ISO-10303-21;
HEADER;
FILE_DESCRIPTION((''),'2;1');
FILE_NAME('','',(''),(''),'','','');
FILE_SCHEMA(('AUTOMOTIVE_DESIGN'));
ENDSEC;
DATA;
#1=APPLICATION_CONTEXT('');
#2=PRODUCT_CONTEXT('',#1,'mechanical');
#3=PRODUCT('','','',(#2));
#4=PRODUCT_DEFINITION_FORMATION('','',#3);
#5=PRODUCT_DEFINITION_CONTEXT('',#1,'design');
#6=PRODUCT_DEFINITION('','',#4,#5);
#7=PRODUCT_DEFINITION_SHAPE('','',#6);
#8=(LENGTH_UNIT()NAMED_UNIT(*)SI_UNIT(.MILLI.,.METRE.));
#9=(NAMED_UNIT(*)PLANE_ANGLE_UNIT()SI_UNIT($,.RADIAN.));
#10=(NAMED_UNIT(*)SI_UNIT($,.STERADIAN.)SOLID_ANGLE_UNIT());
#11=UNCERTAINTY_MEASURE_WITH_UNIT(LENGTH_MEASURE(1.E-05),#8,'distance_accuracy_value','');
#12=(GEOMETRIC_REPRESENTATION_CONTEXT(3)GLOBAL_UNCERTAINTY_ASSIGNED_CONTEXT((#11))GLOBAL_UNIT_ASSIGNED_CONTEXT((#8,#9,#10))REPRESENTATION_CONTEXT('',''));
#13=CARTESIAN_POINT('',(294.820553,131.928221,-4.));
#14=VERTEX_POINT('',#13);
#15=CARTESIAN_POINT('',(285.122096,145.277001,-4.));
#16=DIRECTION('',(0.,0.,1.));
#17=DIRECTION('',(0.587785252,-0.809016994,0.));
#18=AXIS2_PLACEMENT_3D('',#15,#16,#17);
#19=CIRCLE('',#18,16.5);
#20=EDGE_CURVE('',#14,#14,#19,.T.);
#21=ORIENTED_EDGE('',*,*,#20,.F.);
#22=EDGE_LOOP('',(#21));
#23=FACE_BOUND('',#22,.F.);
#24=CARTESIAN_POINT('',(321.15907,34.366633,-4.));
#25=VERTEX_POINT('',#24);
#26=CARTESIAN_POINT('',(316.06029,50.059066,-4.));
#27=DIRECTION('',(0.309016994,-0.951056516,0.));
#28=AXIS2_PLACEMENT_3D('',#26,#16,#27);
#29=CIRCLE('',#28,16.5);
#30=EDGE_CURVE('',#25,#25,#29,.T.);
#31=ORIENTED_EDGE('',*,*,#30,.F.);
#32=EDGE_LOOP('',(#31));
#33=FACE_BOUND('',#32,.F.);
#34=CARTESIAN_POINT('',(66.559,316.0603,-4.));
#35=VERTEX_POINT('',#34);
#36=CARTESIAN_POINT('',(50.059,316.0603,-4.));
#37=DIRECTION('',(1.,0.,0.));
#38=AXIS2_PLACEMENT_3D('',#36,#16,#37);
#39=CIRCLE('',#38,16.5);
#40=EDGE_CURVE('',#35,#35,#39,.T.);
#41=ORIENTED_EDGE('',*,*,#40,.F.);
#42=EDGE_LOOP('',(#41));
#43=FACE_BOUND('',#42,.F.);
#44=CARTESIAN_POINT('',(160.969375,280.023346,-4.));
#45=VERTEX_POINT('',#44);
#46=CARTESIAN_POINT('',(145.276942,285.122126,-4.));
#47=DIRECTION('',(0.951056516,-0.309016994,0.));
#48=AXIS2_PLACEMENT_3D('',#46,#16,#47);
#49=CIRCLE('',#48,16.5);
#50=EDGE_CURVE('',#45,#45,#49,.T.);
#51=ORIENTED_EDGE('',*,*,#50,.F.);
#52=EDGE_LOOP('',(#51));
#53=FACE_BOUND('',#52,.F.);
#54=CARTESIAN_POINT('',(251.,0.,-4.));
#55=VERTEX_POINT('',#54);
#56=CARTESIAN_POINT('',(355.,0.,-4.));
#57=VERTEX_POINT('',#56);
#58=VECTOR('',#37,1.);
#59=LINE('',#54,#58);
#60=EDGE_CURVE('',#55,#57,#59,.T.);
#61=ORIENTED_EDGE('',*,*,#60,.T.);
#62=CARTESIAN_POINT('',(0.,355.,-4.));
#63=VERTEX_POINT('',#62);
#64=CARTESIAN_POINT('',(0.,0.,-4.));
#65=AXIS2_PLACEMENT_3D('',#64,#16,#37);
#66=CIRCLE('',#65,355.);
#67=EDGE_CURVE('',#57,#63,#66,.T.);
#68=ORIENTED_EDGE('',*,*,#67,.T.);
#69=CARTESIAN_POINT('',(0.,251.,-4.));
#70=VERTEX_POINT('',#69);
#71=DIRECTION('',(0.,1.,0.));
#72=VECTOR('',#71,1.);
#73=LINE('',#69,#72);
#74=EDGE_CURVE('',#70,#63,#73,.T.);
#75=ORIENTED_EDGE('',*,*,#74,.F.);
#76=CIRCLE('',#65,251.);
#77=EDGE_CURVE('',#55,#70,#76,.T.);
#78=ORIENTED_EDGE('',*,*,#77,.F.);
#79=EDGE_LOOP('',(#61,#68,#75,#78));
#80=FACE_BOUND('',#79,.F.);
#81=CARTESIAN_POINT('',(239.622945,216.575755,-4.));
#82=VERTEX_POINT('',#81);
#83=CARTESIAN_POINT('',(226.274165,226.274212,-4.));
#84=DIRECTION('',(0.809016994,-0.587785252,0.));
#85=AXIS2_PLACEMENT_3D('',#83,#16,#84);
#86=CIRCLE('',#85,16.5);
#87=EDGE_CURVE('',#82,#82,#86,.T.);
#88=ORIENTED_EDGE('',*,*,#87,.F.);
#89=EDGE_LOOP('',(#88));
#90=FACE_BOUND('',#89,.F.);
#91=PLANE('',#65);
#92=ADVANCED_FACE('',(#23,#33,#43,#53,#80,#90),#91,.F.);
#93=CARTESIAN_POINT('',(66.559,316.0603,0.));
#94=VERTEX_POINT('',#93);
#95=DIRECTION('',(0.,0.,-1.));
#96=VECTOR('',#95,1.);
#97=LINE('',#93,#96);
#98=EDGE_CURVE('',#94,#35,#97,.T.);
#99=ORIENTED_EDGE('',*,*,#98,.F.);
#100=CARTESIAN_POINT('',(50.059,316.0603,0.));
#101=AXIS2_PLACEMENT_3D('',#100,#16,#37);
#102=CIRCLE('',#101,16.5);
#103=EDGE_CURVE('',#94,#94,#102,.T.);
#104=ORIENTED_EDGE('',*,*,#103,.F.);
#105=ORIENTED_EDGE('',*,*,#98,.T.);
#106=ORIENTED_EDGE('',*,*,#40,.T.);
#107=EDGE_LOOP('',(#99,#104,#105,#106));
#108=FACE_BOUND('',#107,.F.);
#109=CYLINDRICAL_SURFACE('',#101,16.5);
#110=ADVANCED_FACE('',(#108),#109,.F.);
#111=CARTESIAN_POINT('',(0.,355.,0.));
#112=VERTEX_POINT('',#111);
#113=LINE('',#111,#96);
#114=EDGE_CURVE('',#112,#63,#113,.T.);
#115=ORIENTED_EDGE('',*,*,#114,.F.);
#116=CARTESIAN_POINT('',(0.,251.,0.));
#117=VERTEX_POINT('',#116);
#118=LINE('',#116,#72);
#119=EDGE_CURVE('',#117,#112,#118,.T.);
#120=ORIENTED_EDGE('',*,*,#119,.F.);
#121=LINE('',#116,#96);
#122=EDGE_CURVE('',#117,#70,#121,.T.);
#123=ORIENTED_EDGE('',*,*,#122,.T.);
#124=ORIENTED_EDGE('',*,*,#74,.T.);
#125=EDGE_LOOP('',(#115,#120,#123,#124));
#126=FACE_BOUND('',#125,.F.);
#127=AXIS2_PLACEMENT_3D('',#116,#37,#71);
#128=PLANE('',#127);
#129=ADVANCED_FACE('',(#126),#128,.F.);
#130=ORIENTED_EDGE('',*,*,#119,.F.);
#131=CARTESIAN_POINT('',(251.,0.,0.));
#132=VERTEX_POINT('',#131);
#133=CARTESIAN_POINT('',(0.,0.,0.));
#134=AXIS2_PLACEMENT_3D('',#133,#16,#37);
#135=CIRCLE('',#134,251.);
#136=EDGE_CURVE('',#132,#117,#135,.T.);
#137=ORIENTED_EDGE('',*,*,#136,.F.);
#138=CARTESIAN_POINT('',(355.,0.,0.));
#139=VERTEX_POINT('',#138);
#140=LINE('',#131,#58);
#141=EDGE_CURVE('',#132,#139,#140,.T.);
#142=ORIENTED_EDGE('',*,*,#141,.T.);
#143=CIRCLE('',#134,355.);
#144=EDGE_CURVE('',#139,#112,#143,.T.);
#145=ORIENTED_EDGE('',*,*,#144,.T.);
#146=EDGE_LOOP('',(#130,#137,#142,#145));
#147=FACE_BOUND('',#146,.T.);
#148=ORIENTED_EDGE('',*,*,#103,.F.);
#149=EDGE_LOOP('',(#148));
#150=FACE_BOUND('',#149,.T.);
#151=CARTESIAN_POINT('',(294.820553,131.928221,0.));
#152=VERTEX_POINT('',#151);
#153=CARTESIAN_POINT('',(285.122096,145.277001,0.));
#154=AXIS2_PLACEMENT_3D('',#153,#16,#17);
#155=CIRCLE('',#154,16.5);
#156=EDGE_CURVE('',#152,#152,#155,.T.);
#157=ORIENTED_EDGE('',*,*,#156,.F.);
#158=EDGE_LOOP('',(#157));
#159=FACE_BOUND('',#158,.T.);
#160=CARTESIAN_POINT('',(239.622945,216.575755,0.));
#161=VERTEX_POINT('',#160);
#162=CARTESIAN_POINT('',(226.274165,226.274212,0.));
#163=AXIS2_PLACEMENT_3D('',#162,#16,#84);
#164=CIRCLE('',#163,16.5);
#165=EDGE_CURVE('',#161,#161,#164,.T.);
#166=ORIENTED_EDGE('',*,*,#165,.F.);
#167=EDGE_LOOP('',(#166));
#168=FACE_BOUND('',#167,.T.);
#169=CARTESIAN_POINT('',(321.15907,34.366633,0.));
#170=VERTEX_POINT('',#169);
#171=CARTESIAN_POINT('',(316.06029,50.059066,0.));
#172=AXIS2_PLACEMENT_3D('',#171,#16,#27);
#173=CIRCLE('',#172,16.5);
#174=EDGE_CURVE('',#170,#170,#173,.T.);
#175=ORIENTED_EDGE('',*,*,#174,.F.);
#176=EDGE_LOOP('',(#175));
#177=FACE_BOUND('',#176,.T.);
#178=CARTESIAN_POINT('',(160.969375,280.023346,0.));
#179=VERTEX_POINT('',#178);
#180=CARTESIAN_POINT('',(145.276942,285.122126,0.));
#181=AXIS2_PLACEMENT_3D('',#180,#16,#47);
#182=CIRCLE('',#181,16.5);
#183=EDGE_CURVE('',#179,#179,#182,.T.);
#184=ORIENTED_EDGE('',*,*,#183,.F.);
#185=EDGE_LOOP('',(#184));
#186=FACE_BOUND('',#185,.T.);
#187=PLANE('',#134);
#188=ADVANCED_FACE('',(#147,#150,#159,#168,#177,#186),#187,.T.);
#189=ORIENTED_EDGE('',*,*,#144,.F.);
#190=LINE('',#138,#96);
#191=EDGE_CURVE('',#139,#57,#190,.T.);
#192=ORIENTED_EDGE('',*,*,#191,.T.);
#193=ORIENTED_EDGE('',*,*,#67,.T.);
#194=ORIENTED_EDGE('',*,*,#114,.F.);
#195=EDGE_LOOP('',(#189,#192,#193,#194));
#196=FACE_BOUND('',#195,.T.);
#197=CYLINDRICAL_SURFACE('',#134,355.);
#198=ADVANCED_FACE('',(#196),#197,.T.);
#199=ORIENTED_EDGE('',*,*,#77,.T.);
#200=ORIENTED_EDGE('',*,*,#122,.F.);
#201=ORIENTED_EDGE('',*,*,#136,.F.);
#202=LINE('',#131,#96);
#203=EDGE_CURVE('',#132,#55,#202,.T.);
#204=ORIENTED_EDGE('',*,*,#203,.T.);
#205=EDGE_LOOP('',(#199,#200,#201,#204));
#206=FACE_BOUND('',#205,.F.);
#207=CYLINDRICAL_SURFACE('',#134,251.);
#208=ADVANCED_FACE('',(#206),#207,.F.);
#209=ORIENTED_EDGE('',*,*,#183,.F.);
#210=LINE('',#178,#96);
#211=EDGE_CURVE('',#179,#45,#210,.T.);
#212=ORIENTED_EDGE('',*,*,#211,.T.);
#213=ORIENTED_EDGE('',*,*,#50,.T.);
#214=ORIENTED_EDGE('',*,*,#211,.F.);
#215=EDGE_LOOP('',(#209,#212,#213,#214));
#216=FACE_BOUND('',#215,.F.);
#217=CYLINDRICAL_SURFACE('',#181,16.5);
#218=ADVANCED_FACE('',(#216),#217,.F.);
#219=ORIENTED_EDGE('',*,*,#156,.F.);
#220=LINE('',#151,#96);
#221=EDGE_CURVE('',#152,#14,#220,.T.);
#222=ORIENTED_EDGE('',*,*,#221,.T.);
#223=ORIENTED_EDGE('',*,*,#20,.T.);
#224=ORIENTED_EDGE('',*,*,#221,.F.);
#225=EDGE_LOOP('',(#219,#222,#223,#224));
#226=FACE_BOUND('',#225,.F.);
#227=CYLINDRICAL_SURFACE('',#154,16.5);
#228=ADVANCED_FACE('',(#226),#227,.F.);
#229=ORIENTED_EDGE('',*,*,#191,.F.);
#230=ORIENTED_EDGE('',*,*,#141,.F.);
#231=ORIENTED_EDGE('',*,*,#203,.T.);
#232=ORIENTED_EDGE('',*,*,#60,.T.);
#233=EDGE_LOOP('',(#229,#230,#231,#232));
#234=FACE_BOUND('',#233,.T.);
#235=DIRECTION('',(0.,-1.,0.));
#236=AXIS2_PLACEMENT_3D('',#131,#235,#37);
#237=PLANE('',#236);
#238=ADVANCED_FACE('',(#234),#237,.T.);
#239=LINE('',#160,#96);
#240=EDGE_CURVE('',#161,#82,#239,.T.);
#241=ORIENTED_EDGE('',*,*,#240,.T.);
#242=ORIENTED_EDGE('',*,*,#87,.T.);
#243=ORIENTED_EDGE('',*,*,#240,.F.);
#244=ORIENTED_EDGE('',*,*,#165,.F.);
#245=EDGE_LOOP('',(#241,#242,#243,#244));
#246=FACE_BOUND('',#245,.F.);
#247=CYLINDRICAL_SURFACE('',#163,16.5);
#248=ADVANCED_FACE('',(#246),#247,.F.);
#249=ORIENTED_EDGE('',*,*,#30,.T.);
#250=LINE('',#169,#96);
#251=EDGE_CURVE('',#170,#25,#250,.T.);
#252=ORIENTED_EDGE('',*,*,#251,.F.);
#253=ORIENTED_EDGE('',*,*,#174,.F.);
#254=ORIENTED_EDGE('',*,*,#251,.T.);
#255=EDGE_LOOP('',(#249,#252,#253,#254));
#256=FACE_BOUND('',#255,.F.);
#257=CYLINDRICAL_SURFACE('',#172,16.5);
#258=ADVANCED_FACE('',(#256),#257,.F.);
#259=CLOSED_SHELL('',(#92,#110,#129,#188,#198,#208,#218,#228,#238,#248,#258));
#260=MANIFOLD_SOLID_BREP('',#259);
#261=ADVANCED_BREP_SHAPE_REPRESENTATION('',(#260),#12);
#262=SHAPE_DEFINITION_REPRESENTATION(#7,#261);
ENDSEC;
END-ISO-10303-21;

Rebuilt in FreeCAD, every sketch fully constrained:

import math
import FreeCAD as App
import Part
import Sketcher
from FreeCAD import Vector
Q = App.Units.Quantity

doc = App.newDocument("Part")
params = doc.addObject("Spreadsheet::Sheet", "Params")
for row, (alias, value) in enumerate([
    ("sketch1_radius", "251 mm"),
    ("sketch1_radius2", "355 mm"),
    ("pad1_length", "4 mm"),
    ("sketch2_diameter", "33 mm"),
], start=1):
    params.set(f"A{row}", alias)
    params.set(f"B{row}", "=" + value)
    params.setAlias(f"B{row}", alias)

body = doc.addObject("PartDesign::Body", "Body")

# Sketch on XY plane
sketch1 = body.newObject("Sketcher::SketchObject", "Sketch")
sketch1.AttachmentSupport = (doc.getObject("XY_Plane"), [""])
sketch1.MapMode = "FlatFace"
sketch1.addGeometry([
    Part.ArcOfCircle(Part.Circle(Vector(0, 0, 0), Vector(0, 0, 1), 251), math.radians(0), math.radians(90)),
    Part.LineSegment(Vector(251, 0, 0), Vector(355, 0, 0)),
    Part.ArcOfCircle(Part.Circle(Vector(0, 0, 0), Vector(0, 0, 1), 355), math.radians(0), math.radians(90)),
    Part.LineSegment(Vector(0, 355, 0), Vector(0, 251, 0)),
], False)
sketch1.addConstraint([
    Sketcher.Constraint("Coincident", 0, 1, 1, 1),
    Sketcher.Constraint("Coincident", 1, 2, 2, 1),
    Sketcher.Constraint("Coincident", 2, 2, 3, 1),
    Sketcher.Constraint("Coincident", 3, 2, 0, 2),
    Sketcher.Constraint("Horizontal", 1),
    Sketcher.Constraint("Vertical", 3),
    Sketcher.Constraint("Coincident", 0, 3, -1, 1),
    Sketcher.Constraint("Coincident", 2, 3, -1, 1),
    Sketcher.Constraint("PointOnObject", 0, 1, -1),
    Sketcher.Constraint("PointOnObject", 3, 2, -2),
    Sketcher.Constraint("Radius", 0, Q("251 mm")),
    Sketcher.Constraint("Radius", 2, Q("355 mm")),
])
sketch1.setExpression("Constraints[10]", "Params.sketch1_radius")
sketch1.setExpression("Constraints[11]", "Params.sketch1_radius2")
pad1 = body.newObject("PartDesign::Pad", "Pad")
pad1.Profile = sketch1
pad1.setExpression("Length", "Params.pad1_length")
pad1.Reversed = True

# Sketch on XY plane
sketch2 = body.newObject("Sketcher::SketchObject", "Sketch001")
sketch2.AttachmentSupport = (doc.getObject("XY_Plane"), [""])
sketch2.MapMode = "FlatFace"
sketch2.addGeometry(Part.Circle(Vector(50, 316, 0), Vector(0, 0, 1), 16), False)
sketch2.addConstraint([
    Sketcher.Constraint("Diameter", 0, Q("33 mm")),
    Sketcher.Constraint("DistanceX", -1, 1, 0, 3, Q("50.059 mm")),
    Sketcher.Constraint("DistanceY", -1, 1, 0, 3, Q("316.0603 mm")),
])
sketch2.setExpression("Constraints[0]", "Params.sketch2_diameter")
pocket1 = body.newObject("PartDesign::Pocket", "Pocket")
pocket1.Profile = sketch2
pocket1.Type = "ThroughAll"
doc.recompute()

polarpattern = body.newObject("PartDesign::PolarPattern", "PolarPattern")
polarpattern.Originals = [pocket1]
polarpattern.Axis = (doc.getObject("Z_Axis"), [""])
polarpattern.Angle = 72
polarpattern.Occurrences = 5
polarpattern.Reversed = True
body.Tip = polarpattern

doc.recompute()
